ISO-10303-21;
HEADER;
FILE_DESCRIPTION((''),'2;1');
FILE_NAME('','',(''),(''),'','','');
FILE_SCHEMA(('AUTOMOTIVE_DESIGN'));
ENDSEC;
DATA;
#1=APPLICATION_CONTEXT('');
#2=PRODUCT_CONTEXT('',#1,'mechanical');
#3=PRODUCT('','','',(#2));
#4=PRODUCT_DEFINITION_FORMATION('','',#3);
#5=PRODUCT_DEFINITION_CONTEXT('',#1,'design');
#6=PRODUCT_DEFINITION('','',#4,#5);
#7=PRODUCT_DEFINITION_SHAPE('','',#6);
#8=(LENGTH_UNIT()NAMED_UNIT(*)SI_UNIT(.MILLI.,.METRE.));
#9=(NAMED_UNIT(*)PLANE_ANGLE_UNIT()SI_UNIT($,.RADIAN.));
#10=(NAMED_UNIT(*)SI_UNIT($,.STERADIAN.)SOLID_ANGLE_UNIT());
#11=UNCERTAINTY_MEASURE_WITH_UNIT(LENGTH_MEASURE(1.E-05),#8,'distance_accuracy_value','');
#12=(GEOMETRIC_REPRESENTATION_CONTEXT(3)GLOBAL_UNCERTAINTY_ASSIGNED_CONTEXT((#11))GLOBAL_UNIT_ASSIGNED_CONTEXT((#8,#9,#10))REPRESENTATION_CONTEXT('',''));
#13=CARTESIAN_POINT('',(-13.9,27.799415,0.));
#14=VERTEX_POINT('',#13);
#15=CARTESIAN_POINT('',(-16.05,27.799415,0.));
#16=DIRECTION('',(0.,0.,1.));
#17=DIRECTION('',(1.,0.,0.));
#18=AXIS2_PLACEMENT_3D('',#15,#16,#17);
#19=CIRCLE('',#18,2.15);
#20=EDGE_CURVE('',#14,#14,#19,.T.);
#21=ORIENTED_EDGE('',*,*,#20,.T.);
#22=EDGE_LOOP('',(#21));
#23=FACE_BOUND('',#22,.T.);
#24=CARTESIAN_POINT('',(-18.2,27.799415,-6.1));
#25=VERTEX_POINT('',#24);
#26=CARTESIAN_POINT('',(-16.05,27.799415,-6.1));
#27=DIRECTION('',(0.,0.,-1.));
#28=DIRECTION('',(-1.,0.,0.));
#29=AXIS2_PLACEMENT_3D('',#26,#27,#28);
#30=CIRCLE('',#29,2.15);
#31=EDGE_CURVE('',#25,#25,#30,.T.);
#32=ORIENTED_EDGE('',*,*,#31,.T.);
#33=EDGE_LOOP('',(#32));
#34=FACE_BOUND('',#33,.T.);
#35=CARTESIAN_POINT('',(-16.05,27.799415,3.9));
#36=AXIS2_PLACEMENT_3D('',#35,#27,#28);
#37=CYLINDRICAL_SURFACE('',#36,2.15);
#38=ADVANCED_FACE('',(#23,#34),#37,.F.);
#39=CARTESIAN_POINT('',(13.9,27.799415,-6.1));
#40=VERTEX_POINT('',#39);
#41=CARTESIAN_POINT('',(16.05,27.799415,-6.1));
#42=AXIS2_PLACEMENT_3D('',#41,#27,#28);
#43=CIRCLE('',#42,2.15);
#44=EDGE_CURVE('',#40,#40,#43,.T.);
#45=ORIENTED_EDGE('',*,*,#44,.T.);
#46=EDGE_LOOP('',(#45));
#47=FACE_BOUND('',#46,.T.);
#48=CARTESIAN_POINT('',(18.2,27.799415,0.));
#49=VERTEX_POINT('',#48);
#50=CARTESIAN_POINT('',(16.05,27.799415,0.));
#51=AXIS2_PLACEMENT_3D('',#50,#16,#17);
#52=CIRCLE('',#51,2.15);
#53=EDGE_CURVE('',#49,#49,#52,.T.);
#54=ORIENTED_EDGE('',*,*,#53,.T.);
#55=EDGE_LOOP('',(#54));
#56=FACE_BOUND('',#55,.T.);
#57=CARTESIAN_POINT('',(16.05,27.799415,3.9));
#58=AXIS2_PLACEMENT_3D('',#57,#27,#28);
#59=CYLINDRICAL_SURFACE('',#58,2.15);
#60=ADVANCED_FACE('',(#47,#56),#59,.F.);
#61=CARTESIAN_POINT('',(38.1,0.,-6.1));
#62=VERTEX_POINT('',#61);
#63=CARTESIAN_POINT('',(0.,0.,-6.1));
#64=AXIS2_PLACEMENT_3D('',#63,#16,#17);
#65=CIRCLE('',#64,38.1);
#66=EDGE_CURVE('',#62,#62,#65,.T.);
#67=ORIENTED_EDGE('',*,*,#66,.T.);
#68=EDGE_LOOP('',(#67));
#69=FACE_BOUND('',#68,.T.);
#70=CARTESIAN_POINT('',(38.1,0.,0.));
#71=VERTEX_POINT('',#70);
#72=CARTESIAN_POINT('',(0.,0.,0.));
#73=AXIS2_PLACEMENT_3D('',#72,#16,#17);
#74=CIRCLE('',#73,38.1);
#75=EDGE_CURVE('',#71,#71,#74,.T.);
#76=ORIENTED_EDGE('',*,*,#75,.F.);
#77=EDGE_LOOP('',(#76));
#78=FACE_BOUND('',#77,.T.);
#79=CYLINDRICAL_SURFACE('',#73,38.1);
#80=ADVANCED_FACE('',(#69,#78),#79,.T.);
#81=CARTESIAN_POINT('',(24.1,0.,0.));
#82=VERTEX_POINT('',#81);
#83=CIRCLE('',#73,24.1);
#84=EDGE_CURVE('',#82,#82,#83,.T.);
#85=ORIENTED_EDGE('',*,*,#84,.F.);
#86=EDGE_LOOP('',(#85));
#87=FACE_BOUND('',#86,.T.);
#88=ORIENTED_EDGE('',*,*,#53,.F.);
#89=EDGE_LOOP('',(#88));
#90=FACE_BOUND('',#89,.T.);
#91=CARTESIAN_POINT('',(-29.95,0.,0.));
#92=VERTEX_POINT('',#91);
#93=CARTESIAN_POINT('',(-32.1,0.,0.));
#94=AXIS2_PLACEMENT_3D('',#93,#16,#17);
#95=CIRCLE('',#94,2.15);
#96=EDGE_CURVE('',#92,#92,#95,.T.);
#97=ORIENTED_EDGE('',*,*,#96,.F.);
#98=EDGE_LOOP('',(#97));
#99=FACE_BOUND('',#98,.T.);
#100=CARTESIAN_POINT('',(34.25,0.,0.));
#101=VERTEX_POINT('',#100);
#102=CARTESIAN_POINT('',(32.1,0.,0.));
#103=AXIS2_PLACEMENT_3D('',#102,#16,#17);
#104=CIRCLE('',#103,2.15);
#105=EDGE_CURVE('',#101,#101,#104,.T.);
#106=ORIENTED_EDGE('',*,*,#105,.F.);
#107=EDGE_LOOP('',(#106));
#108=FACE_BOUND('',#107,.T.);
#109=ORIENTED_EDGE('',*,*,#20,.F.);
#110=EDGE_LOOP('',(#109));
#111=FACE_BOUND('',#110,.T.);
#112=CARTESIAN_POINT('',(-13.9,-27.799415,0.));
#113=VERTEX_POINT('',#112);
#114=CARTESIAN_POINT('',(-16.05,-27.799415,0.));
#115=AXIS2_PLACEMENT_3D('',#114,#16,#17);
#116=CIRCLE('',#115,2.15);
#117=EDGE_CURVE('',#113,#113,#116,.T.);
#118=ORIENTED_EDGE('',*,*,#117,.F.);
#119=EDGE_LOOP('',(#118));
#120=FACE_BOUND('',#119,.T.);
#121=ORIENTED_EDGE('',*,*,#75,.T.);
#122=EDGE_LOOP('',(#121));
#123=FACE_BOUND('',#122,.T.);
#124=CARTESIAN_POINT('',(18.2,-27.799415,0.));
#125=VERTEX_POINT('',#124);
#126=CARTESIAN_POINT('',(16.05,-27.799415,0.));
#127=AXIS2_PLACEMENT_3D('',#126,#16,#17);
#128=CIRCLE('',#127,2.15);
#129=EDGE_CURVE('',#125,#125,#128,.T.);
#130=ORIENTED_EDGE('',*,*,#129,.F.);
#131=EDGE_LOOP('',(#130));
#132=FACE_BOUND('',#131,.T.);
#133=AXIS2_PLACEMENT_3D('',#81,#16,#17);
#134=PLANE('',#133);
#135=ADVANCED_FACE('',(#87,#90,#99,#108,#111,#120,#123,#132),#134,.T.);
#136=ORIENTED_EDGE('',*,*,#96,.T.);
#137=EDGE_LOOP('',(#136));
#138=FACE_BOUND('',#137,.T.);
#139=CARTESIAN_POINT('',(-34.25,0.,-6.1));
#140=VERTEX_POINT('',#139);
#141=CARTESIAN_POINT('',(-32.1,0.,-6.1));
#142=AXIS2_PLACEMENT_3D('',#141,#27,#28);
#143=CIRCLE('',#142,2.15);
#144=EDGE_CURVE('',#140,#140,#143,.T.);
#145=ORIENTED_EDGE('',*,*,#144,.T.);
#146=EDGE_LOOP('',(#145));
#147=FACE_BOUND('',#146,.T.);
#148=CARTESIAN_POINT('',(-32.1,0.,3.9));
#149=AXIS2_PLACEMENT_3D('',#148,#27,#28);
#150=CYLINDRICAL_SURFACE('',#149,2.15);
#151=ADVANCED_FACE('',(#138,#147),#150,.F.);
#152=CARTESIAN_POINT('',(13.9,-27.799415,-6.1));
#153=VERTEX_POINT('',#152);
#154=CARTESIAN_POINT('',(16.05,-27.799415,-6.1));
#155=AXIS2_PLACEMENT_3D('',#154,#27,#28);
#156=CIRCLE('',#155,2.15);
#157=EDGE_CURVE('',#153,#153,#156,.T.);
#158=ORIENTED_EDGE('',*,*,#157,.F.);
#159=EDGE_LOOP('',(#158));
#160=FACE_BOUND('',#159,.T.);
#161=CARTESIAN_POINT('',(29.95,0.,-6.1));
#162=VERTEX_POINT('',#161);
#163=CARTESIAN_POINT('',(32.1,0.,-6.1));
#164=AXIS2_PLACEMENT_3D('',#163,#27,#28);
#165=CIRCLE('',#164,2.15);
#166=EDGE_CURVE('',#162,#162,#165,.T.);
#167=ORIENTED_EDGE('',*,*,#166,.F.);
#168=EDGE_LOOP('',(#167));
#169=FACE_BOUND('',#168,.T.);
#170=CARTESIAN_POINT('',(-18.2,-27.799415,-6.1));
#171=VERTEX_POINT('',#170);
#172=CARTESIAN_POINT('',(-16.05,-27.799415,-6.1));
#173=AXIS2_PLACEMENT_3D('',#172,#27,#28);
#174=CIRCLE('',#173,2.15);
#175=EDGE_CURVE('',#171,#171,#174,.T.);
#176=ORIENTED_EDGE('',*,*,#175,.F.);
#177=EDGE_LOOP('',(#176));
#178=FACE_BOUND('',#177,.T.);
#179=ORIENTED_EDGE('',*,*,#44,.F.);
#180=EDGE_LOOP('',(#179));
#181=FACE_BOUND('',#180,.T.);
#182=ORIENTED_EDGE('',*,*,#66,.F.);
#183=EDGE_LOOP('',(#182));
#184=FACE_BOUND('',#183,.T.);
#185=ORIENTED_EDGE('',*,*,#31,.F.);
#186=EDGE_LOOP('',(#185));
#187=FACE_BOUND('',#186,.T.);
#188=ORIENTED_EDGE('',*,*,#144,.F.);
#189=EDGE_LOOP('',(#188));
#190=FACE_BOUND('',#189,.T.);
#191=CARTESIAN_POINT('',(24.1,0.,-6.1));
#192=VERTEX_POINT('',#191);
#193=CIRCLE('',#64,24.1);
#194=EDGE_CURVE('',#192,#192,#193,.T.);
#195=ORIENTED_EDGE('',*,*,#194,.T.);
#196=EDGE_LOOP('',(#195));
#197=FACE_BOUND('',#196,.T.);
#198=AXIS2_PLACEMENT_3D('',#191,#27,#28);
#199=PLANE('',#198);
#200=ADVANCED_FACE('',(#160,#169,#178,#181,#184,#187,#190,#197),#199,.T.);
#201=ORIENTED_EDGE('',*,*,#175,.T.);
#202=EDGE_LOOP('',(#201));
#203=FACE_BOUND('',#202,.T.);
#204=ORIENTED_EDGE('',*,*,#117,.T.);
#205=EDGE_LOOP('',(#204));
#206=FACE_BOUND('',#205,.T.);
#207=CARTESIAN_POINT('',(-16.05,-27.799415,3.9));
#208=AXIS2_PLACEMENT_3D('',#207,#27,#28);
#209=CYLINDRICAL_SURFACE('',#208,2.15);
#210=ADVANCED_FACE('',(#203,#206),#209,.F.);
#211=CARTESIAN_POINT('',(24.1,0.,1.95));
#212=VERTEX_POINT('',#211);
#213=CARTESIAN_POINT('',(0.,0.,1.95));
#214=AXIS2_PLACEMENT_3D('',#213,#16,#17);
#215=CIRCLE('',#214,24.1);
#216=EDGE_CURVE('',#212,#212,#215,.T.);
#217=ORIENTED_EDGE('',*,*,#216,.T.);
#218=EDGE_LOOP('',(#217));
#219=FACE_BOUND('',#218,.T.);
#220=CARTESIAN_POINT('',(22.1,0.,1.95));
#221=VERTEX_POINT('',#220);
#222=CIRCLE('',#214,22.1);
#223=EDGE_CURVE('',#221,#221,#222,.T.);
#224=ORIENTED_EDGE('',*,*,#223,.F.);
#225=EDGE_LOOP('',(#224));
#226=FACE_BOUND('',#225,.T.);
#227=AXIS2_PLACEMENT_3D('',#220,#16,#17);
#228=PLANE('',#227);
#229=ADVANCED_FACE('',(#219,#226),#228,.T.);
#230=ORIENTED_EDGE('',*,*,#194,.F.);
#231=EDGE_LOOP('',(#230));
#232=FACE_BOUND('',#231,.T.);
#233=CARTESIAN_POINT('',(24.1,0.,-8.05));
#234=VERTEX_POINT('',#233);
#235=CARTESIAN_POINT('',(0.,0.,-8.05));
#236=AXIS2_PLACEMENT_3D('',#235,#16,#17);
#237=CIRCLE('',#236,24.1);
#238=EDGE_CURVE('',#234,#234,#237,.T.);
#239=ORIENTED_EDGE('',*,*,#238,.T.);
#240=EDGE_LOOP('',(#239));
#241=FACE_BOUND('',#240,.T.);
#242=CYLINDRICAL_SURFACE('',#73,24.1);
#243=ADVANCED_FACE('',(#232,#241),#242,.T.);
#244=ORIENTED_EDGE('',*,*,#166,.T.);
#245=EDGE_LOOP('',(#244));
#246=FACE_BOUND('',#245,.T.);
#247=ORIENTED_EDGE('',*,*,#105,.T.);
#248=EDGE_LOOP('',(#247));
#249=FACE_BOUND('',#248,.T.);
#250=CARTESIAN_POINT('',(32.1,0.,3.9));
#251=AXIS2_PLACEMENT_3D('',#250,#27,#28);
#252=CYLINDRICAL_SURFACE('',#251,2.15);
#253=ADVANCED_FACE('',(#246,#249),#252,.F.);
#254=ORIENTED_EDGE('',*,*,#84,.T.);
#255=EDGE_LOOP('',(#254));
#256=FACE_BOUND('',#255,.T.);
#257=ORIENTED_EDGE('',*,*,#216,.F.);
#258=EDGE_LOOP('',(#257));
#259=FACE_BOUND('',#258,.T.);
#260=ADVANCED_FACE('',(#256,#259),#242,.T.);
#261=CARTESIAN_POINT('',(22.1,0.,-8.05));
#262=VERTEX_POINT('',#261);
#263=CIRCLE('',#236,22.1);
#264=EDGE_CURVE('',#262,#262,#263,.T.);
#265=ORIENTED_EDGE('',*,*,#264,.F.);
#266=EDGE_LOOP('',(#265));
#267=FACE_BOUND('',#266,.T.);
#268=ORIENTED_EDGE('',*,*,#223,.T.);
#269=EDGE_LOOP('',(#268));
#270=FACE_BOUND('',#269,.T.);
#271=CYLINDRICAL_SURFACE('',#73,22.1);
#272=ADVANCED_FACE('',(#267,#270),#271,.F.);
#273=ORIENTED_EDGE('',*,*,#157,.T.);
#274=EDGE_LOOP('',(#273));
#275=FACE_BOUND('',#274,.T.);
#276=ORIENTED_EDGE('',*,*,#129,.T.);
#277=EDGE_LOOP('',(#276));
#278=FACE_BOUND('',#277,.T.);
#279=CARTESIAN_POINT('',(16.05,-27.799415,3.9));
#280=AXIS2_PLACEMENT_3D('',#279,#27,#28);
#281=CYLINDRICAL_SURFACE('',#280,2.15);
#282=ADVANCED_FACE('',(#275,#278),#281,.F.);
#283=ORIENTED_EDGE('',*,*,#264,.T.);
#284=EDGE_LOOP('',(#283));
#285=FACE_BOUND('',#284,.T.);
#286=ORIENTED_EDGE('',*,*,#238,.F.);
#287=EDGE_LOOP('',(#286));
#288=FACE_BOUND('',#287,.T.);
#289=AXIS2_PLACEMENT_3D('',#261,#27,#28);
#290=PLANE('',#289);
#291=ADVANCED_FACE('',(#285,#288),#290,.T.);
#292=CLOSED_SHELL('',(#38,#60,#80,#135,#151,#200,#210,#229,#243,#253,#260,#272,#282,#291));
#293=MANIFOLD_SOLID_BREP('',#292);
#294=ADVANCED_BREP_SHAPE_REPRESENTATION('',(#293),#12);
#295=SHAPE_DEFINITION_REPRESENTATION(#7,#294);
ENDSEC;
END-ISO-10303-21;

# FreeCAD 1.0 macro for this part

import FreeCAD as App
import Part
import Sketcher


def add_polygon(sketch, points):
    """Adds a closed chain of lines whose ends are joined by coincident constraints."""
    first, n = sketch.GeometryCount, len(points)
    for a, b in zip(points, points[1:] + points[:1]):
        sketch.addGeometry(Part.LineSegment(App.Vector(*a, 0), App.Vector(*b, 0)), False)
    for i in range(n):
        sketch.addConstraint(Sketcher.Constraint("Coincident", first + i, 2, first + (i + 1) % n, 1))

doc = App.newDocument("Part")
params = doc.addObject("Spreadsheet::Sheet", "Params")
for row, (alias, value) in enumerate([
    ("sketch1_width", "14 mm"),
    ("sketch1_width2", "2 mm"),
    ("sketch1_height", "10 mm"),
    ("sketch1_height2", "6.1 mm"),
    ("revolution_angle", "360 deg"),
    ("sketch2_diameter", "4.3 mm"),
    ("pocket1_length", "10 mm"),
], start=1):
    params.set(f"A{row}", alias)
    params.set(f"B{row}", "=" + value)
    params.setAlias(f"B{row}", alias)

body = doc.addObject("PartDesign::Body", "Body")

sketch1 = doc.addObject("Sketcher::SketchObject", "Sketch")
body.addObject(sketch1)
sketch1.AttachmentSupport = (doc.XZ_Plane, [""])
sketch1.MapMode = "FlatFace"
add_polygon(sketch1, [(24.1, 0), (38.1, 0), (38.1, -6.1), (24.1, -6.1), (24.1, -8.1), (22.1, -8.1), (22.1, 1.9), (24.1, 1.9)])
sketch1.addConstraint([
    Sketcher.Constraint("Horizontal", 0),
    Sketcher.Constraint("Vertical", 1),
    Sketcher.Constraint("Horizontal", 2),
    Sketcher.Constraint("Vertical", 3),
    Sketcher.Constraint("Horizontal", 4),
    Sketcher.Constraint("Vertical", 5),
    Sketcher.Constraint("Horizontal", 6),
    Sketcher.Constraint("Vertical", 7),
    Sketcher.Constraint("PointOnObject", 0, 2, -1),
    Sketcher.Constraint("Vertical", 3, 2, 6, 2),
    Sketcher.Constraint("Equal", 3, 7),
    Sketcher.Constraint("DistanceX", 0, 1, 0, 2, 14.0),
    Sketcher.Constraint("DistanceX", 4, 2, 4, 1, 2.0),
    Sketcher.Constraint("DistanceY", 5, 1, 5, 2, 10.0),
    Sketcher.Constraint("DistanceY", 1, 2, 1, 1, 6.1),
    Sketcher.Constraint("DistanceX", -1, 1, 0, 2, 38.1),
])
sketch1.setExpression("Constraints[19]", "Params.sketch1_width")
sketch1.setExpression("Constraints[20]", "Params.sketch1_width2")
sketch1.setExpression("Constraints[21]", "Params.sketch1_height")
sketch1.setExpression("Constraints[22]", "Params.sketch1_height2")
revolution = doc.addObject("PartDesign::Revolution", "Revolution")
body.addObject(revolution)
revolution.Profile = sketch1
revolution.ReferenceAxis = (sketch1, ["V_Axis"])
revolution.setExpression("Angle", "Params.revolution_angle")

sketch2 = doc.addObject("Sketcher::SketchObject", "Sketch001")
body.addObject(sketch2)
sketch2.AttachmentSupport = (doc.XY_Plane, [""])
sketch2.MapMode = "FlatFace"
sketch2.AttachmentOffset = App.Placement(App.Vector(0, 0, -6.1), App.Rotation())
sketch2.addGeometry([
    Part.Circle(App.Vector(32.1, 0, 0), App.Vector(0, 0, 1), 2.1),
    Part.Circle(App.Vector(16.1, 27.8, 0), App.Vector(0, 0, 1), 2.1),
    Part.Circle(App.Vector(-16.1, 27.8, 0), App.Vector(0, 0, 1), 2.1),
    Part.Circle(App.Vector(-32.1, 0, 0), App.Vector(0, 0, 1), 2.1),
    Part.Circle(App.Vector(-16.1, -27.8, 0), App.Vector(0, 0, 1), 2.1),
    Part.Circle(App.Vector(16.1, -27.8, 0), App.Vector(0, 0, 1), 2.1),
], False)
sketch2.addConstraint([
    Sketcher.Constraint("Equal", 0, 1),
    Sketcher.Constraint("Equal", 1, 2),
    Sketcher.Constraint("Equal", 2, 3),
    Sketcher.Constraint("Equal", 3, 4),
    Sketcher.Constraint("Equal", 4, 5),
    Sketcher.Constraint("Symmetric", 0, 3, 3, 3, -1, 1),
    Sketcher.Constraint("Symmetric", 1, 3, 4, 3, -1, 1),
    Sketcher.Constraint("Symmetric", 2, 3, 5, 3, -1, 1),
    Sketcher.Constraint("Symmetric", 1, 3, 2, 3, -2),
    Sketcher.Constraint("PointOnObject", 0, 3, -1),
    Sketcher.Constraint("Diameter", 0, 4.3),
    Sketcher.Constraint("DistanceX", -1, 1, 0, 3, 32.1),
    Sketcher.Constraint("DistanceX", 2, 3, 1, 3, 32.1),
    Sketcher.Constraint("DistanceY", 4, 3, 2, 3, 55.598831),
])
sketch2.setExpression("Constraints[10]", "Params.sketch2_diameter")
pocket1 = doc.addObject("PartDesign::Pocket", "Pocket")
body.addObject(pocket1)
pocket1.Profile = sketch2
pocket1.setExpression("Length", "Params.pocket1_length")
pocket1.Reversed = True

doc.recompute()
